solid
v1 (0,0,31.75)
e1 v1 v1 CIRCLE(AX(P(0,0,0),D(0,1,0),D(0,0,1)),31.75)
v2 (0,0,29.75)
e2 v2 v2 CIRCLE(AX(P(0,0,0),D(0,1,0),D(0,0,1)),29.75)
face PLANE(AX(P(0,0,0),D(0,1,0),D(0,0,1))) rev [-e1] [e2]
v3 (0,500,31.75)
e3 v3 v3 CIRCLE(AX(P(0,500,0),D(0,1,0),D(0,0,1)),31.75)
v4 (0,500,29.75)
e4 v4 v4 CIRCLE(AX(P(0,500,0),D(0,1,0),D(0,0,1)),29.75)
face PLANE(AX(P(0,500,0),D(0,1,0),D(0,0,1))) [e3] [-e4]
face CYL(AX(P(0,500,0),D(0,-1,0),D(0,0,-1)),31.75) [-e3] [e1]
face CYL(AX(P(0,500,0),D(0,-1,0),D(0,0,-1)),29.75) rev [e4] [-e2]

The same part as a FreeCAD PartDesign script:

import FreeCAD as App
import Part
import Sketcher

V = App.Vector
Q = App.Units.Quantity

doc = App.newDocument("Part")
body = doc.addObject("PartDesign::Body", "Body")

# Sketch on XZ plane
sketch1 = body.newObject("Sketcher::SketchObject", "Sketch")
sketch1.AttachmentSupport = (doc.getObject("XZ_Plane"), [""])
sketch1.MapMode = "FlatFace"
sketch1.addGeometry([
    Part.Circle(V(0, 0, 0), V(0, 0, 1), 31.75),
    Part.Circle(V(0, 0, 0), V(0, 0, 1), 29.75),
], False)
sketch1.addConstraint([
    Sketcher.Constraint("Coincident", 0, 3, -1, 1),
    Sketcher.Constraint("Coincident", 1, 3, -1, 1),
    Sketcher.Constraint("Diameter", 0, Q("63.5 mm")),
    Sketcher.Constraint("Diameter", 1, Q("59.5 mm")),
])
pad1 = body.newObject("PartDesign::Pad", "Pad")
pad1.Profile = sketch1
pad1.Length = 500
pad1.Reversed = True

doc.recompute()
